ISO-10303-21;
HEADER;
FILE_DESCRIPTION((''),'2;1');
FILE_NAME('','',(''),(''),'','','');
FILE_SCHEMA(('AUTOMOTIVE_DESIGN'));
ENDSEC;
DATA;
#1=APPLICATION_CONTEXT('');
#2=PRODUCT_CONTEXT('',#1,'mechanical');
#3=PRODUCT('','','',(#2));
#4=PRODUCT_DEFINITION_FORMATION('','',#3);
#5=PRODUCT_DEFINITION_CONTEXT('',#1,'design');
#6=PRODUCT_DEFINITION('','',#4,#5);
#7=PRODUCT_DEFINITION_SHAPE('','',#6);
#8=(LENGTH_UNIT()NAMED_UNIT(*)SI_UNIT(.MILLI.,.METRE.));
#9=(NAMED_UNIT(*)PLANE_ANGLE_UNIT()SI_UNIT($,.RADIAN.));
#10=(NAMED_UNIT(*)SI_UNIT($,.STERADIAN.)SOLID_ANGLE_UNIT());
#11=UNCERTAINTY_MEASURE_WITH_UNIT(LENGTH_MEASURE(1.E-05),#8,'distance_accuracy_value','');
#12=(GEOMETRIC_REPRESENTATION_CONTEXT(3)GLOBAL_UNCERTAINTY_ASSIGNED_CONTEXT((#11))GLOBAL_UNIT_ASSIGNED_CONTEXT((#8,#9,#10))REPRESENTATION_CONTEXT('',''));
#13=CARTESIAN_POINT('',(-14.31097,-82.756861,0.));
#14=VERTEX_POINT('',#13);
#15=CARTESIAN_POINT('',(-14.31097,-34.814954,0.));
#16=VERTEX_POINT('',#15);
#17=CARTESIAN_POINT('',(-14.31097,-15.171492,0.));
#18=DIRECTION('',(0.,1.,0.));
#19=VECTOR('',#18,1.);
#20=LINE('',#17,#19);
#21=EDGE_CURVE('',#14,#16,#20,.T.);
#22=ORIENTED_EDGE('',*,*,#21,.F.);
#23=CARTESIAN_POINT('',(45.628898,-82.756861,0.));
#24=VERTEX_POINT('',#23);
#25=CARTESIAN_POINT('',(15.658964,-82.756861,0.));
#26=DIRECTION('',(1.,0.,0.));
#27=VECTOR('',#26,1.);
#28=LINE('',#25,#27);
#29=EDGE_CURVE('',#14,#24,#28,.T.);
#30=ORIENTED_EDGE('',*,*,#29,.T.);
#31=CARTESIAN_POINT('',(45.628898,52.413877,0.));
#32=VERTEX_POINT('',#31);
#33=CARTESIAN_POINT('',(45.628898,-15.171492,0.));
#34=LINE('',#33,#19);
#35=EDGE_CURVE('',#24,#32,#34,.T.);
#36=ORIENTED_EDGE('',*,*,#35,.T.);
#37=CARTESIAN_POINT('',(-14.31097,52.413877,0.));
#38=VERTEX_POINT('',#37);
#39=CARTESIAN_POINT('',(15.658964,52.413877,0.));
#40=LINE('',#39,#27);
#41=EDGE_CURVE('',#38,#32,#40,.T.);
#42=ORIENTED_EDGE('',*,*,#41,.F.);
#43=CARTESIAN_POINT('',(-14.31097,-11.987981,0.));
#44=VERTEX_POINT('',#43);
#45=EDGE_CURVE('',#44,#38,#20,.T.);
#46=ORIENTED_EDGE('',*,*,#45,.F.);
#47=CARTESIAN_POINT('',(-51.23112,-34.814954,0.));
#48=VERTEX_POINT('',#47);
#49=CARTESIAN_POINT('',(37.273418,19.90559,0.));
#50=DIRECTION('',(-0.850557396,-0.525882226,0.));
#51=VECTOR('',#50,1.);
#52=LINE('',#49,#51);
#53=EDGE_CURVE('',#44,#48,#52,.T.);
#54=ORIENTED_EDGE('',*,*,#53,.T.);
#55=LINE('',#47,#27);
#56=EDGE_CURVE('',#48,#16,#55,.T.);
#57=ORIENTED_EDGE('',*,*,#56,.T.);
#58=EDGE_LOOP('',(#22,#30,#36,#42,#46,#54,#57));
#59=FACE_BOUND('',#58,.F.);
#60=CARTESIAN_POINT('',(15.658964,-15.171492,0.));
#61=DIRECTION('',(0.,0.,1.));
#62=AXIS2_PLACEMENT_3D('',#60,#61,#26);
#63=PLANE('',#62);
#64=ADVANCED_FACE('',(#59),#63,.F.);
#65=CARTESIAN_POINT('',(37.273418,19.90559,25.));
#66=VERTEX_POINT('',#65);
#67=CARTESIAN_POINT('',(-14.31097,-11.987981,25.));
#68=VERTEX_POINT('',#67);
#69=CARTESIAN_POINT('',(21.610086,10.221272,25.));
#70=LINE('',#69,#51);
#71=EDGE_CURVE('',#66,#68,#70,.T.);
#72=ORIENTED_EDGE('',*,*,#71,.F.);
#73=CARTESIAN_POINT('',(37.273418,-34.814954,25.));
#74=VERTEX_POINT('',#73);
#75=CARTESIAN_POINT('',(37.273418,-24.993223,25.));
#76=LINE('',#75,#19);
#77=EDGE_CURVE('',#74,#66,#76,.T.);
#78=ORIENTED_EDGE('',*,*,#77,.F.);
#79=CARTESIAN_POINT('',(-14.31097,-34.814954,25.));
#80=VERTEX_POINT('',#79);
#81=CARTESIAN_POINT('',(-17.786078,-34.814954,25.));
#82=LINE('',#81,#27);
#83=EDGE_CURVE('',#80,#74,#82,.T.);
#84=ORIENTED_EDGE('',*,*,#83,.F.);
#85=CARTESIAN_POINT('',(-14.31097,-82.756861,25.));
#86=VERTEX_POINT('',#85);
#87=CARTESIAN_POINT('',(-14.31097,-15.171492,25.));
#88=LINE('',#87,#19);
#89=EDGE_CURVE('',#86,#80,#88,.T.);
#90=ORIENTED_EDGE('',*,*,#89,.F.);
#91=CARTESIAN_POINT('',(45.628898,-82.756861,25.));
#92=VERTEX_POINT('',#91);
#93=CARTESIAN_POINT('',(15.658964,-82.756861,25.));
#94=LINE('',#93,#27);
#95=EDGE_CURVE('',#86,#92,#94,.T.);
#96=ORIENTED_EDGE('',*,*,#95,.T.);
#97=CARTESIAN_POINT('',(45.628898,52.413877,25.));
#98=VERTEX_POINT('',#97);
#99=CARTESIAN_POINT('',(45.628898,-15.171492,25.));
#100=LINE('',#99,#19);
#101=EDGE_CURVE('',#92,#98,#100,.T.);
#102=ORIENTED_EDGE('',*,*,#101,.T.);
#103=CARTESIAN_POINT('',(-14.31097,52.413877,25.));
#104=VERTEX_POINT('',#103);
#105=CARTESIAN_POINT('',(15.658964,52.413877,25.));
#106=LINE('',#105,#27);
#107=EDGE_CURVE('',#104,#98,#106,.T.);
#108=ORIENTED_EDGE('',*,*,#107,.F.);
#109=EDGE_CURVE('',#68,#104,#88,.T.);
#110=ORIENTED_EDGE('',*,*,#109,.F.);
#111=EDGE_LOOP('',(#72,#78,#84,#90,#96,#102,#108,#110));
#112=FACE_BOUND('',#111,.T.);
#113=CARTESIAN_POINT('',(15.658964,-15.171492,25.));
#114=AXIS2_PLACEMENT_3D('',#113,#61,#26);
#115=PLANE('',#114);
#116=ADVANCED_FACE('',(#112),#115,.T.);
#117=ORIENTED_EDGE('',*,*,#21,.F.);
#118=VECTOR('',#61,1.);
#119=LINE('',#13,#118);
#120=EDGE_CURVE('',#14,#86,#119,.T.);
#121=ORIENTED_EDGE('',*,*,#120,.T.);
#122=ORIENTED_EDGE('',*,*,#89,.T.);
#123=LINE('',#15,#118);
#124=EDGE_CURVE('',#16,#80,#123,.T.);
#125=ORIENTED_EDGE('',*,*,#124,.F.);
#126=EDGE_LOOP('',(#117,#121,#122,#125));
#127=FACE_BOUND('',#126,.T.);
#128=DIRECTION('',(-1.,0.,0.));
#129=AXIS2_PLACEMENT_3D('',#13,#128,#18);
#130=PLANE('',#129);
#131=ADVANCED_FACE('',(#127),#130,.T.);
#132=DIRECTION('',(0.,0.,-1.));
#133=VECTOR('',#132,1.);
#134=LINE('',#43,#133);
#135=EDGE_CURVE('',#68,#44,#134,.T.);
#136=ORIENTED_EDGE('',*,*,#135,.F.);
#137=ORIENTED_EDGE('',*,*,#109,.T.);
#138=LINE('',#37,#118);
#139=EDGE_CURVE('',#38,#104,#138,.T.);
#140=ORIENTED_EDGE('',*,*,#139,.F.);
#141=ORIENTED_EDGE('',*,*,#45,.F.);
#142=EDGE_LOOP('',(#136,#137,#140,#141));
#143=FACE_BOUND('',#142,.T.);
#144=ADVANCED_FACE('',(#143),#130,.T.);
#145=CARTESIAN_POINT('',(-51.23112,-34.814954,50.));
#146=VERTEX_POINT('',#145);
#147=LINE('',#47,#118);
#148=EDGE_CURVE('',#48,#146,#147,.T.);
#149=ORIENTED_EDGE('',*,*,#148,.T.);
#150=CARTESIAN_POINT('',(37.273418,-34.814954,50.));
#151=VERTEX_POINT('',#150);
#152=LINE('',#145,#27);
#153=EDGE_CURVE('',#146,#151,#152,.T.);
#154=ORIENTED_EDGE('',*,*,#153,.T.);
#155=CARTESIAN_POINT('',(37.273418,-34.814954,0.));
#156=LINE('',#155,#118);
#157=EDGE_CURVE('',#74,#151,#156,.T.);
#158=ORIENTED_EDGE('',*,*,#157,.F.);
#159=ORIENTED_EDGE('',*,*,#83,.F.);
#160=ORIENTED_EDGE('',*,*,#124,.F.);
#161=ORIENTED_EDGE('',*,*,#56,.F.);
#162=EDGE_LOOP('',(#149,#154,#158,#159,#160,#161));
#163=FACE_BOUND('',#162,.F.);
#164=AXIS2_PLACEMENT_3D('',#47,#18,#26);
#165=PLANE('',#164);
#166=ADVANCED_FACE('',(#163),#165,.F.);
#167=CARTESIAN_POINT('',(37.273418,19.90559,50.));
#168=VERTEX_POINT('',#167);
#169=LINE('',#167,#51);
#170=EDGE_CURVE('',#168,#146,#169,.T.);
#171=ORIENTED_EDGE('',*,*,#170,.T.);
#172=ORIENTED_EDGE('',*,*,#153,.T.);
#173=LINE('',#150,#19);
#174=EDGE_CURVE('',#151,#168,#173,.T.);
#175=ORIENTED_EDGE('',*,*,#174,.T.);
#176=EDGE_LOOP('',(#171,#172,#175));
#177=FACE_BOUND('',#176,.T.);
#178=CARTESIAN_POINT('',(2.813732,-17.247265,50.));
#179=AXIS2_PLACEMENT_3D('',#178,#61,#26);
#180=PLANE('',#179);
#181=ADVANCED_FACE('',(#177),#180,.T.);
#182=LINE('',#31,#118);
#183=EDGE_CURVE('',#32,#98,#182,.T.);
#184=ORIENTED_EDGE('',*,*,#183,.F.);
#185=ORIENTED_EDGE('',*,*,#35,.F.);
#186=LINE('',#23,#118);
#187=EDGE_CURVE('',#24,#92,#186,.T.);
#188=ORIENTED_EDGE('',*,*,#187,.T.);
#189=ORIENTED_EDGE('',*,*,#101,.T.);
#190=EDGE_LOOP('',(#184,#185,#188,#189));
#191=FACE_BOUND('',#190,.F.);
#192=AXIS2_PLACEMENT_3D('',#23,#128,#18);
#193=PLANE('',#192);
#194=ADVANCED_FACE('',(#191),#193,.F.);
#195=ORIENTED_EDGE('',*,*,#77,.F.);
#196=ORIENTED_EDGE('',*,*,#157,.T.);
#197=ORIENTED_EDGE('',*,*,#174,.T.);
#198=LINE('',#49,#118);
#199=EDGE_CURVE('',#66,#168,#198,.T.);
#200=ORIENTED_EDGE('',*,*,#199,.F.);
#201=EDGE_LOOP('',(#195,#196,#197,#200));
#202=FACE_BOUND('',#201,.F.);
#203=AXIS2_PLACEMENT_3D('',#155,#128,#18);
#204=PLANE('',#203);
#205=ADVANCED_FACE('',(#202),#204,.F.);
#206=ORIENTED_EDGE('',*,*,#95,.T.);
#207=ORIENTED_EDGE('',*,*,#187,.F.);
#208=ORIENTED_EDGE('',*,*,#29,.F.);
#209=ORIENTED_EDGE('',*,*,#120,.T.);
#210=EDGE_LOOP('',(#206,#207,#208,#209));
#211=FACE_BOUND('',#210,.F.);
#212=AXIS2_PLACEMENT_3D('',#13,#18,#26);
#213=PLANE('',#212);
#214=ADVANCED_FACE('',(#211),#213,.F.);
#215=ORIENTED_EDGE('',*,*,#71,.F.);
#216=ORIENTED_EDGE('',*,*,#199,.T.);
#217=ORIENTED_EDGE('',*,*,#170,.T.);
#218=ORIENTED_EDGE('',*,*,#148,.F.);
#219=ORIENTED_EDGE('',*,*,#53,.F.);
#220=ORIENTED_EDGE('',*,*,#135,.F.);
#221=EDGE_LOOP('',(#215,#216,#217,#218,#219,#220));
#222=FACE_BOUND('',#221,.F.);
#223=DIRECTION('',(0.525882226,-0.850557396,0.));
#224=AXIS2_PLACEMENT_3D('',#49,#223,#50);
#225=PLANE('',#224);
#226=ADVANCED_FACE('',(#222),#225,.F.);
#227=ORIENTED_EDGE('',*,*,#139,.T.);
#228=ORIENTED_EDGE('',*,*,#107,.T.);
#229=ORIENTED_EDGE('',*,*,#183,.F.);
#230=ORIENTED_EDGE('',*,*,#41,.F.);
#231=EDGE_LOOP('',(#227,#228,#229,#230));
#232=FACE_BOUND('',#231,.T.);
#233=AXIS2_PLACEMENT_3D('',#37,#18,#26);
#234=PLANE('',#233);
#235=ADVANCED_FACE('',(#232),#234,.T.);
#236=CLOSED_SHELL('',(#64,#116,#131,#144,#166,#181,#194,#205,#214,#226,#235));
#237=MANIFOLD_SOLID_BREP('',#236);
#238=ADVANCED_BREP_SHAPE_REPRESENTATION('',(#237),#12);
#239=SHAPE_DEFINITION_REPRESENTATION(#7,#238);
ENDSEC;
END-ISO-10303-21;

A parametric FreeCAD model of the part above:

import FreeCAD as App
import Part
import Sketcher

V = App.Vector

doc = App.newDocument("Part")
body = doc.addObject("PartDesign::Body", "Body")

# Sketch on XY plane
sketch1 = body.newObject("Sketcher::SketchObject", "Sketch")
sketch1.AttachmentSupport = (doc.getObject("XY_Plane"), [""])
sketch1.MapMode = "FlatFace"
sketch1.addGeometry(Part.LineSegment(V(37, 20, 0), V(-51, -35, 0)), False)
sketch1.addGeometry(Part.LineSegment(V(-51, -35, 0), V(37, -35, 0)), False)
sketch1.addGeometry(Part.LineSegment(V(37, -35, 0), V(37, 20, 0)), False)
sketch1.addConstraint(Sketcher.Constraint("Coincident", 0, 2, 1, 1))
sketch1.addConstraint(Sketcher.Constraint("Coincident", 1, 2, 2, 1))
sketch1.addConstraint(Sketcher.Constraint("Coincident", 2, 2, 0, 1))
sketch1.addConstraint(Sketcher.Constraint("Horizontal", 1))
sketch1.addConstraint(Sketcher.Constraint("Vertical", 2))
sketch1.addConstraint(Sketcher.Constraint("Distance", 0, 104.054751))
sketch1.addConstraint(Sketcher.Constraint("DistanceX", 1, 1, 1, 2, 88.504538))
sketch1.addConstraint(Sketcher.Constraint("DistanceX", 0, 2, -1, 1, 51.23112))
sketch1.addConstraint(Sketcher.Constraint("DistanceY", -1, 1, 2, 2, 19.90559))
pad1 = body.newObject("PartDesign::Pad", "Pad")
pad1.Profile = sketch1
pad1.Length = 50

# Sketch on XY plane
sketch2 = body.newObject("Sketcher::SketchObject", "Sketch001")
sketch2.AttachmentSupport = (doc.getObject("XY_Plane"), [""])
sketch2.MapMode = "FlatFace"
sketch2.addGeometry(Part.LineSegment(V(-14, 52, 0), V(-14, -83, 0)), False)
sketch2.addGeometry(Part.LineSegment(V(-14, -83, 0), V(46, -83, 0)), False)
sketch2.addGeometry(Part.LineSegment(V(46, -83, 0), V(46, 52, 0)), False)
sketch2.addGeometry(Part.LineSegment(V(46, 52, 0), V(-14, 52, 0)), False)
sketch2.addConstraint(Sketcher.Constraint("Coincident", 0, 2, 1, 1))
sketch2.addConstraint(Sketcher.Constraint("Coincident", 1, 2, 2, 1))
sketch2.addConstraint(Sketcher.Constraint("Coincident", 2, 2, 3, 1))
sketch2.addConstraint(Sketcher.Constraint("Coincident", 3, 2, 0, 1))
sketch2.addConstraint(Sketcher.Constraint("Vertical", 0))
sketch2.addConstraint(Sketcher.Constraint("Horizontal", 1))
sketch2.addConstraint(Sketcher.Constraint("Vertical", 2))
sketch2.addConstraint(Sketcher.Constraint("Horizontal", 3))
sketch2.addConstraint(Sketcher.Constraint("DistanceX", 1, 1, 1, 2, 59.939869))
sketch2.addConstraint(Sketcher.Constraint("DistanceY", 0, 2, 0, 1, 135.170739))
sketch2.addConstraint(Sketcher.Constraint("DistanceX", -1, 1, 1, 2, 45.628898))
sketch2.addConstraint(Sketcher.Constraint("DistanceY", 0, 2, -1, 1, 82.756861))
pad2 = body.newObject("PartDesign::Pad", "Pad001")
pad2.Profile = sketch2
pad2.Length = 25

doc.recompute()
